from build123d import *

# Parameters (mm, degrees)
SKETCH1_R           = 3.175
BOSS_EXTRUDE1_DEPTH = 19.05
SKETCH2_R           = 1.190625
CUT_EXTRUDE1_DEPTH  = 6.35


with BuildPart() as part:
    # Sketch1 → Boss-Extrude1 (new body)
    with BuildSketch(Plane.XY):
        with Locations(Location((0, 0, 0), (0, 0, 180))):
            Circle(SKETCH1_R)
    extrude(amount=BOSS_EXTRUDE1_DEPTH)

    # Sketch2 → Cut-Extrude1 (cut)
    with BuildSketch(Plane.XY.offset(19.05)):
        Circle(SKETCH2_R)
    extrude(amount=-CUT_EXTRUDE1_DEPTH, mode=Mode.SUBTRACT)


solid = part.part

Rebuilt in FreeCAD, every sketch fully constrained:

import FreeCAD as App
import Part
import Sketcher
Q = App.Units.Quantity

doc = App.newDocument("Part")
body = doc.addObject("PartDesign::Body", "Body")

# Sketch on XY plane
sketch1 = body.newObject("Sketcher::SketchObject", "Sketch")
sketch1.AttachmentSupport = (doc.getObject("XY_Plane"), [""])
sketch1.MapMode = "FlatFace"
sketch1.addGeometry(Part.Circle(App.Vector(0, 0, 0), App.Vector(0, 0, 1), 3.2), False)
sketch1.addConstraint([
    Sketcher.Constraint("Coincident", 0, 3, -1, 1),
    Sketcher.Constraint("Diameter", 0, Q("0.25 in")),
])
pad1 = body.newObject("PartDesign::Pad", "Pad")
pad1.Profile = sketch1
pad1.Length = Q("0.75 in")

# Sketch on XY plane
sketch2 = body.newObject("Sketcher::SketchObject", "Sketch001")
sketch2.AttachmentSupport = (doc.getObject("XY_Plane"), [""])
sketch2.MapMode = "FlatFace"
sketch2.AttachmentOffset = App.Placement(App.Vector(0, 0, 0.75 * 25.4), App.Rotation())
sketch2.addGeometry(Part.Circle(App.Vector(0, 0, 0), App.Vector(0, 0, 1), 1.2), False)
sketch2.addConstraint([
    Sketcher.Constraint("Coincident", 0, 3, -1, 1),
    Sketcher.Constraint("Diameter", 0, Q("0.09375 in")),
])
pocket1 = body.newObject("PartDesign::Pocket", "Pocket")
pocket1.Profile = sketch2
pocket1.Length = Q("0.25 in")

doc.recompute()
